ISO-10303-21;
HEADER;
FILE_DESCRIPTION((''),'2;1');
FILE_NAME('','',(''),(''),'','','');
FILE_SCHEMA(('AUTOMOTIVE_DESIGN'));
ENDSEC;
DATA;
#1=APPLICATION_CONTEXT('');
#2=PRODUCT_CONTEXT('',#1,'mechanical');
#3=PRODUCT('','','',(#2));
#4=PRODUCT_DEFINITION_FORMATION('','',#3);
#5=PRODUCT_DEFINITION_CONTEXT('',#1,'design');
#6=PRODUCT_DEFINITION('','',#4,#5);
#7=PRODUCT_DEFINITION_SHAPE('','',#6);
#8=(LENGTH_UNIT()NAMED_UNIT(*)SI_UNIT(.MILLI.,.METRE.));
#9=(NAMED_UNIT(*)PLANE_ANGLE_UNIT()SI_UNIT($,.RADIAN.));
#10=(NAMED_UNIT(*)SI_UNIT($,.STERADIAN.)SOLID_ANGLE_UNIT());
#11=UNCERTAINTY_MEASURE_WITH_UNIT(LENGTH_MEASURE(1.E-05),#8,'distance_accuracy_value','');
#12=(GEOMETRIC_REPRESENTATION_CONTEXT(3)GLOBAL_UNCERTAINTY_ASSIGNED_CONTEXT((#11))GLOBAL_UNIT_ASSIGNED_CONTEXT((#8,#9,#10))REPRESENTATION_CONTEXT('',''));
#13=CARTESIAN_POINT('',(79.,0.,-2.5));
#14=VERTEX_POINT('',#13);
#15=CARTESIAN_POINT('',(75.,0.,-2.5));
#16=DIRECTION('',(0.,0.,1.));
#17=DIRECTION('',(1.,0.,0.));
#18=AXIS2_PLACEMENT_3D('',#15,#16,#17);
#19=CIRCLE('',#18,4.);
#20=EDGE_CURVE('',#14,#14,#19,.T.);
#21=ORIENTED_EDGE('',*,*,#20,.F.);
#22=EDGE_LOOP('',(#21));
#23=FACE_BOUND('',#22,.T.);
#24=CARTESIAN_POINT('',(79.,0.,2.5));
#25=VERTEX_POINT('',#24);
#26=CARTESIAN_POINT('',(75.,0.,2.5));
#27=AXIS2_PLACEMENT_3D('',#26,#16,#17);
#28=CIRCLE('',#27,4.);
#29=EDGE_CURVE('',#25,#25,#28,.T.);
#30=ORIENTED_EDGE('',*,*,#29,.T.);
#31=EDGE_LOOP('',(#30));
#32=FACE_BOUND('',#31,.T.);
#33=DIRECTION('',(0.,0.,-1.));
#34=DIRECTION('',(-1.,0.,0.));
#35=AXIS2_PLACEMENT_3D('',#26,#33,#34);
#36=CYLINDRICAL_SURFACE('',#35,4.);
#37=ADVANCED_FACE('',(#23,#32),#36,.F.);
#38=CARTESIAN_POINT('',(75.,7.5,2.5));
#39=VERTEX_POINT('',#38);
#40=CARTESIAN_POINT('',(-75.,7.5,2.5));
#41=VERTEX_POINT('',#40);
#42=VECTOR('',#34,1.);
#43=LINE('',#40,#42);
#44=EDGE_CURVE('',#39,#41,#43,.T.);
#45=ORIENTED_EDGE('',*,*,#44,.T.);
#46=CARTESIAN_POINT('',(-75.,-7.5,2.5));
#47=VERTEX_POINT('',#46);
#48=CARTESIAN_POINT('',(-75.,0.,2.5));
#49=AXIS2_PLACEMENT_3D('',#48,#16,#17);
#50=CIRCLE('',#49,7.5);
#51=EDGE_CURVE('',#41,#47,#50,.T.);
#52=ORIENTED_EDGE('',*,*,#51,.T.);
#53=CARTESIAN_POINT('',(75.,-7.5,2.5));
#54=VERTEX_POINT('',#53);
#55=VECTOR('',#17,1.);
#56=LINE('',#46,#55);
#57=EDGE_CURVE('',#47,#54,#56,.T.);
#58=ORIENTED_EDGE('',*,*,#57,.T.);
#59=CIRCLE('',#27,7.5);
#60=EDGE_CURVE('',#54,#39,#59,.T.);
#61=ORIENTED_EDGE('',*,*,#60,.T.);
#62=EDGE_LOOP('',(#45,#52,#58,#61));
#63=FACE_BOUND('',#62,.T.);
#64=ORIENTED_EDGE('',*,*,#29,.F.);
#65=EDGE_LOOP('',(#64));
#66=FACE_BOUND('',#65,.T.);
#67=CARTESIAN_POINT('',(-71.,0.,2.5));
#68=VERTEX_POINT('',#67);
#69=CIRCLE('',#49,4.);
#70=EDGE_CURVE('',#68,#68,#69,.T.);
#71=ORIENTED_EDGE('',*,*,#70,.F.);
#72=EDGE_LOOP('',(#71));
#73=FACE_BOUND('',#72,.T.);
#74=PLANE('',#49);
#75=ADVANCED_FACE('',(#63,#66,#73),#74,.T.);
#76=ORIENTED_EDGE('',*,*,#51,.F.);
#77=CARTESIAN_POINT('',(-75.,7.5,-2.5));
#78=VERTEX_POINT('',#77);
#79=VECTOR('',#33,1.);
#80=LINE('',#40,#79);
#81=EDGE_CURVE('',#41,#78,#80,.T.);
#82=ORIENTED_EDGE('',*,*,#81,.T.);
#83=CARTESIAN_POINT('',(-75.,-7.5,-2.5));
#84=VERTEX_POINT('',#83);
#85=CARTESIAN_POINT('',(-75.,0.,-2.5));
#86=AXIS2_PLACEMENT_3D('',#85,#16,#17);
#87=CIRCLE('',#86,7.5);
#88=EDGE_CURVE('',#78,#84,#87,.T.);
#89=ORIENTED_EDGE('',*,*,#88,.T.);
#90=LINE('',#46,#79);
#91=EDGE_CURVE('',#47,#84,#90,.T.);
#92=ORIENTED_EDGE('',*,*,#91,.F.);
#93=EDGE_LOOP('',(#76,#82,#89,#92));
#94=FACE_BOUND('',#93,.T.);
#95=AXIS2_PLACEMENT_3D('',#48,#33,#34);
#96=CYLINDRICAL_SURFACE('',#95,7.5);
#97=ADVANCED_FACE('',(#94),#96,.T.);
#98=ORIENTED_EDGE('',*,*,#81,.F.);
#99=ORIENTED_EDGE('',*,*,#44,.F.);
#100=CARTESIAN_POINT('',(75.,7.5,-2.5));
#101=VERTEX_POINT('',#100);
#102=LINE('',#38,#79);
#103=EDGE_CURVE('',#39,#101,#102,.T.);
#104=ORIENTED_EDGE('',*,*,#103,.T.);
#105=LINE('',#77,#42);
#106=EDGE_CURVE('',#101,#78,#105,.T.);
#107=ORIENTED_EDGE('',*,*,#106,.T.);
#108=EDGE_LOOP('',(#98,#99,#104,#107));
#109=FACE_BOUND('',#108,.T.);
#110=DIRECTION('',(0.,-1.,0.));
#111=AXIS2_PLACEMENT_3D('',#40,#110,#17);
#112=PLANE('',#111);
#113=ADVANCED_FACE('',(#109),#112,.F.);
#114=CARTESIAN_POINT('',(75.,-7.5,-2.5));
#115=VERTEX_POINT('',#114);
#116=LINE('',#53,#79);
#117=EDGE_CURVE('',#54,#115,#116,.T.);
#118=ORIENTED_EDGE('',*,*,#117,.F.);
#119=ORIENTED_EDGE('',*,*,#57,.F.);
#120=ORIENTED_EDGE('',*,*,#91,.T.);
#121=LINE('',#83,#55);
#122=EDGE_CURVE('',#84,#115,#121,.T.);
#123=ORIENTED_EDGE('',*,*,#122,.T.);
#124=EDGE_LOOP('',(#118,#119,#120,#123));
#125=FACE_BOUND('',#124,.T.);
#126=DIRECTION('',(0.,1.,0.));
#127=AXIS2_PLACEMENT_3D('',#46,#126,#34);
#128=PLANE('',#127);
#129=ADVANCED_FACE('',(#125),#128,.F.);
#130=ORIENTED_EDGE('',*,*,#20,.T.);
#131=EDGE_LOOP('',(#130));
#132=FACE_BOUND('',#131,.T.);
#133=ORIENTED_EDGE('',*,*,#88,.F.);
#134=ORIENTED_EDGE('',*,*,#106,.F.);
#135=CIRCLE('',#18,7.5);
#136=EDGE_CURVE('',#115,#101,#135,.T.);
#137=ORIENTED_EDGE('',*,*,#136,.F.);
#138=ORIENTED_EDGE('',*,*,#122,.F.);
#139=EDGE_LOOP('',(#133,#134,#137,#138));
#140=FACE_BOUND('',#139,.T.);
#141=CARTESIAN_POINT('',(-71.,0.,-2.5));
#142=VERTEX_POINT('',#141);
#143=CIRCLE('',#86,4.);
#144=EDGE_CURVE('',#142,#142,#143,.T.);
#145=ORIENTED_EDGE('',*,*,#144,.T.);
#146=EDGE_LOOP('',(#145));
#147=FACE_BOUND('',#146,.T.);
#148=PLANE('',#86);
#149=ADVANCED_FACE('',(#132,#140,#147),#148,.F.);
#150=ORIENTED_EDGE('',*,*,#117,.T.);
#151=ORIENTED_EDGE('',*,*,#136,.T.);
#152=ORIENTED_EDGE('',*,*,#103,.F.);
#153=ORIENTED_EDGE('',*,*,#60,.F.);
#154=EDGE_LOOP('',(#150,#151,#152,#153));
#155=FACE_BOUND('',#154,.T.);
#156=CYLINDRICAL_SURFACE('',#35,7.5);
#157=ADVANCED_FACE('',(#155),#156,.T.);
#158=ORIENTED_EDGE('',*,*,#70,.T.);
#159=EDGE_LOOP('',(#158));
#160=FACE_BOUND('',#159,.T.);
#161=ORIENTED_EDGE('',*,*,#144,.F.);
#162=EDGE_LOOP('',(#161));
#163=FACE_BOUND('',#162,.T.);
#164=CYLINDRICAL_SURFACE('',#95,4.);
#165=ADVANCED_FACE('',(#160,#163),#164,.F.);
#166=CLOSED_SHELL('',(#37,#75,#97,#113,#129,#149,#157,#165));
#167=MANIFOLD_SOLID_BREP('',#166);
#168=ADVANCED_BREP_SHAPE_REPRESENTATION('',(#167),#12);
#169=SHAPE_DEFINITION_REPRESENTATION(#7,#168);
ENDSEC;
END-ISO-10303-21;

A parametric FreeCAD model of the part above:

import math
import FreeCAD as App
import Part
import Sketcher
from FreeCAD import Vector
Q = App.Units.Quantity

doc = App.newDocument("Part")
body = doc.addObject("PartDesign::Body", "Body")

# Sketch on XY plane
sketch1 = body.newObject("Sketcher::SketchObject", "Sketch")
sketch1.AttachmentSupport = (doc.getObject("XY_Plane"), [""])
sketch1.MapMode = "FlatFace"
sketch1.addGeometry([
    Part.LineSegment(Vector(75, 7.5, 0), Vector(-75, 7.5, 0)),  # 0
    Part.ArcOfCircle(Part.Circle(Vector(-75, 0, 0), Vector(0, 0, 1), 7.5), math.radians(90), math.radians(270)),  # 1
    Part.LineSegment(Vector(-75, -7.5, 0), Vector(75, -7.5, 0)),  # 2
    Part.ArcOfCircle(Part.Circle(Vector(75, 0, 0), Vector(0, 0, 1), 7.5), math.radians(-90), math.radians(90)),  # 3
    Part.Circle(Vector(75, 0, 0), Vector(0, 0, 1), 4),  # 4
    Part.Circle(Vector(-75, 0, 0), Vector(0, 0, 1), 4),  # 5
], False)
sketch1.addConstraint([
    Sketcher.Constraint("Tangent", 0, 2, 1, 1),
    Sketcher.Constraint("Tangent", 1, 2, 2, 1),
    Sketcher.Constraint("Tangent", 2, 2, 3, 1),
    Sketcher.Constraint("Tangent", 3, 2, 0, 1),
    Sketcher.Constraint("Horizontal", 0),
    Sketcher.Constraint("Horizontal", 2),
    Sketcher.Constraint("Coincident", 4, 3, 3, 3),
    Sketcher.Constraint("Coincident", 5, 3, 1, 3),
    Sketcher.Constraint("Equal", 4, 5),
    Sketcher.Constraint("Symmetric", 1, 3, 3, 3, -1, 1),
    Sketcher.Constraint("Diameter", 4, Q("8 mm")),
    Sketcher.Constraint("Radius", 1, Q("7.5 mm")),
    Sketcher.Constraint("DistanceX", 0, 2, 0, 1, Q("150 mm")),
])
pad1 = body.newObject("PartDesign::Pad", "Pad")
pad1.Profile = sketch1
pad1.Length = 5
pad1.Midplane = True

doc.recompute()
